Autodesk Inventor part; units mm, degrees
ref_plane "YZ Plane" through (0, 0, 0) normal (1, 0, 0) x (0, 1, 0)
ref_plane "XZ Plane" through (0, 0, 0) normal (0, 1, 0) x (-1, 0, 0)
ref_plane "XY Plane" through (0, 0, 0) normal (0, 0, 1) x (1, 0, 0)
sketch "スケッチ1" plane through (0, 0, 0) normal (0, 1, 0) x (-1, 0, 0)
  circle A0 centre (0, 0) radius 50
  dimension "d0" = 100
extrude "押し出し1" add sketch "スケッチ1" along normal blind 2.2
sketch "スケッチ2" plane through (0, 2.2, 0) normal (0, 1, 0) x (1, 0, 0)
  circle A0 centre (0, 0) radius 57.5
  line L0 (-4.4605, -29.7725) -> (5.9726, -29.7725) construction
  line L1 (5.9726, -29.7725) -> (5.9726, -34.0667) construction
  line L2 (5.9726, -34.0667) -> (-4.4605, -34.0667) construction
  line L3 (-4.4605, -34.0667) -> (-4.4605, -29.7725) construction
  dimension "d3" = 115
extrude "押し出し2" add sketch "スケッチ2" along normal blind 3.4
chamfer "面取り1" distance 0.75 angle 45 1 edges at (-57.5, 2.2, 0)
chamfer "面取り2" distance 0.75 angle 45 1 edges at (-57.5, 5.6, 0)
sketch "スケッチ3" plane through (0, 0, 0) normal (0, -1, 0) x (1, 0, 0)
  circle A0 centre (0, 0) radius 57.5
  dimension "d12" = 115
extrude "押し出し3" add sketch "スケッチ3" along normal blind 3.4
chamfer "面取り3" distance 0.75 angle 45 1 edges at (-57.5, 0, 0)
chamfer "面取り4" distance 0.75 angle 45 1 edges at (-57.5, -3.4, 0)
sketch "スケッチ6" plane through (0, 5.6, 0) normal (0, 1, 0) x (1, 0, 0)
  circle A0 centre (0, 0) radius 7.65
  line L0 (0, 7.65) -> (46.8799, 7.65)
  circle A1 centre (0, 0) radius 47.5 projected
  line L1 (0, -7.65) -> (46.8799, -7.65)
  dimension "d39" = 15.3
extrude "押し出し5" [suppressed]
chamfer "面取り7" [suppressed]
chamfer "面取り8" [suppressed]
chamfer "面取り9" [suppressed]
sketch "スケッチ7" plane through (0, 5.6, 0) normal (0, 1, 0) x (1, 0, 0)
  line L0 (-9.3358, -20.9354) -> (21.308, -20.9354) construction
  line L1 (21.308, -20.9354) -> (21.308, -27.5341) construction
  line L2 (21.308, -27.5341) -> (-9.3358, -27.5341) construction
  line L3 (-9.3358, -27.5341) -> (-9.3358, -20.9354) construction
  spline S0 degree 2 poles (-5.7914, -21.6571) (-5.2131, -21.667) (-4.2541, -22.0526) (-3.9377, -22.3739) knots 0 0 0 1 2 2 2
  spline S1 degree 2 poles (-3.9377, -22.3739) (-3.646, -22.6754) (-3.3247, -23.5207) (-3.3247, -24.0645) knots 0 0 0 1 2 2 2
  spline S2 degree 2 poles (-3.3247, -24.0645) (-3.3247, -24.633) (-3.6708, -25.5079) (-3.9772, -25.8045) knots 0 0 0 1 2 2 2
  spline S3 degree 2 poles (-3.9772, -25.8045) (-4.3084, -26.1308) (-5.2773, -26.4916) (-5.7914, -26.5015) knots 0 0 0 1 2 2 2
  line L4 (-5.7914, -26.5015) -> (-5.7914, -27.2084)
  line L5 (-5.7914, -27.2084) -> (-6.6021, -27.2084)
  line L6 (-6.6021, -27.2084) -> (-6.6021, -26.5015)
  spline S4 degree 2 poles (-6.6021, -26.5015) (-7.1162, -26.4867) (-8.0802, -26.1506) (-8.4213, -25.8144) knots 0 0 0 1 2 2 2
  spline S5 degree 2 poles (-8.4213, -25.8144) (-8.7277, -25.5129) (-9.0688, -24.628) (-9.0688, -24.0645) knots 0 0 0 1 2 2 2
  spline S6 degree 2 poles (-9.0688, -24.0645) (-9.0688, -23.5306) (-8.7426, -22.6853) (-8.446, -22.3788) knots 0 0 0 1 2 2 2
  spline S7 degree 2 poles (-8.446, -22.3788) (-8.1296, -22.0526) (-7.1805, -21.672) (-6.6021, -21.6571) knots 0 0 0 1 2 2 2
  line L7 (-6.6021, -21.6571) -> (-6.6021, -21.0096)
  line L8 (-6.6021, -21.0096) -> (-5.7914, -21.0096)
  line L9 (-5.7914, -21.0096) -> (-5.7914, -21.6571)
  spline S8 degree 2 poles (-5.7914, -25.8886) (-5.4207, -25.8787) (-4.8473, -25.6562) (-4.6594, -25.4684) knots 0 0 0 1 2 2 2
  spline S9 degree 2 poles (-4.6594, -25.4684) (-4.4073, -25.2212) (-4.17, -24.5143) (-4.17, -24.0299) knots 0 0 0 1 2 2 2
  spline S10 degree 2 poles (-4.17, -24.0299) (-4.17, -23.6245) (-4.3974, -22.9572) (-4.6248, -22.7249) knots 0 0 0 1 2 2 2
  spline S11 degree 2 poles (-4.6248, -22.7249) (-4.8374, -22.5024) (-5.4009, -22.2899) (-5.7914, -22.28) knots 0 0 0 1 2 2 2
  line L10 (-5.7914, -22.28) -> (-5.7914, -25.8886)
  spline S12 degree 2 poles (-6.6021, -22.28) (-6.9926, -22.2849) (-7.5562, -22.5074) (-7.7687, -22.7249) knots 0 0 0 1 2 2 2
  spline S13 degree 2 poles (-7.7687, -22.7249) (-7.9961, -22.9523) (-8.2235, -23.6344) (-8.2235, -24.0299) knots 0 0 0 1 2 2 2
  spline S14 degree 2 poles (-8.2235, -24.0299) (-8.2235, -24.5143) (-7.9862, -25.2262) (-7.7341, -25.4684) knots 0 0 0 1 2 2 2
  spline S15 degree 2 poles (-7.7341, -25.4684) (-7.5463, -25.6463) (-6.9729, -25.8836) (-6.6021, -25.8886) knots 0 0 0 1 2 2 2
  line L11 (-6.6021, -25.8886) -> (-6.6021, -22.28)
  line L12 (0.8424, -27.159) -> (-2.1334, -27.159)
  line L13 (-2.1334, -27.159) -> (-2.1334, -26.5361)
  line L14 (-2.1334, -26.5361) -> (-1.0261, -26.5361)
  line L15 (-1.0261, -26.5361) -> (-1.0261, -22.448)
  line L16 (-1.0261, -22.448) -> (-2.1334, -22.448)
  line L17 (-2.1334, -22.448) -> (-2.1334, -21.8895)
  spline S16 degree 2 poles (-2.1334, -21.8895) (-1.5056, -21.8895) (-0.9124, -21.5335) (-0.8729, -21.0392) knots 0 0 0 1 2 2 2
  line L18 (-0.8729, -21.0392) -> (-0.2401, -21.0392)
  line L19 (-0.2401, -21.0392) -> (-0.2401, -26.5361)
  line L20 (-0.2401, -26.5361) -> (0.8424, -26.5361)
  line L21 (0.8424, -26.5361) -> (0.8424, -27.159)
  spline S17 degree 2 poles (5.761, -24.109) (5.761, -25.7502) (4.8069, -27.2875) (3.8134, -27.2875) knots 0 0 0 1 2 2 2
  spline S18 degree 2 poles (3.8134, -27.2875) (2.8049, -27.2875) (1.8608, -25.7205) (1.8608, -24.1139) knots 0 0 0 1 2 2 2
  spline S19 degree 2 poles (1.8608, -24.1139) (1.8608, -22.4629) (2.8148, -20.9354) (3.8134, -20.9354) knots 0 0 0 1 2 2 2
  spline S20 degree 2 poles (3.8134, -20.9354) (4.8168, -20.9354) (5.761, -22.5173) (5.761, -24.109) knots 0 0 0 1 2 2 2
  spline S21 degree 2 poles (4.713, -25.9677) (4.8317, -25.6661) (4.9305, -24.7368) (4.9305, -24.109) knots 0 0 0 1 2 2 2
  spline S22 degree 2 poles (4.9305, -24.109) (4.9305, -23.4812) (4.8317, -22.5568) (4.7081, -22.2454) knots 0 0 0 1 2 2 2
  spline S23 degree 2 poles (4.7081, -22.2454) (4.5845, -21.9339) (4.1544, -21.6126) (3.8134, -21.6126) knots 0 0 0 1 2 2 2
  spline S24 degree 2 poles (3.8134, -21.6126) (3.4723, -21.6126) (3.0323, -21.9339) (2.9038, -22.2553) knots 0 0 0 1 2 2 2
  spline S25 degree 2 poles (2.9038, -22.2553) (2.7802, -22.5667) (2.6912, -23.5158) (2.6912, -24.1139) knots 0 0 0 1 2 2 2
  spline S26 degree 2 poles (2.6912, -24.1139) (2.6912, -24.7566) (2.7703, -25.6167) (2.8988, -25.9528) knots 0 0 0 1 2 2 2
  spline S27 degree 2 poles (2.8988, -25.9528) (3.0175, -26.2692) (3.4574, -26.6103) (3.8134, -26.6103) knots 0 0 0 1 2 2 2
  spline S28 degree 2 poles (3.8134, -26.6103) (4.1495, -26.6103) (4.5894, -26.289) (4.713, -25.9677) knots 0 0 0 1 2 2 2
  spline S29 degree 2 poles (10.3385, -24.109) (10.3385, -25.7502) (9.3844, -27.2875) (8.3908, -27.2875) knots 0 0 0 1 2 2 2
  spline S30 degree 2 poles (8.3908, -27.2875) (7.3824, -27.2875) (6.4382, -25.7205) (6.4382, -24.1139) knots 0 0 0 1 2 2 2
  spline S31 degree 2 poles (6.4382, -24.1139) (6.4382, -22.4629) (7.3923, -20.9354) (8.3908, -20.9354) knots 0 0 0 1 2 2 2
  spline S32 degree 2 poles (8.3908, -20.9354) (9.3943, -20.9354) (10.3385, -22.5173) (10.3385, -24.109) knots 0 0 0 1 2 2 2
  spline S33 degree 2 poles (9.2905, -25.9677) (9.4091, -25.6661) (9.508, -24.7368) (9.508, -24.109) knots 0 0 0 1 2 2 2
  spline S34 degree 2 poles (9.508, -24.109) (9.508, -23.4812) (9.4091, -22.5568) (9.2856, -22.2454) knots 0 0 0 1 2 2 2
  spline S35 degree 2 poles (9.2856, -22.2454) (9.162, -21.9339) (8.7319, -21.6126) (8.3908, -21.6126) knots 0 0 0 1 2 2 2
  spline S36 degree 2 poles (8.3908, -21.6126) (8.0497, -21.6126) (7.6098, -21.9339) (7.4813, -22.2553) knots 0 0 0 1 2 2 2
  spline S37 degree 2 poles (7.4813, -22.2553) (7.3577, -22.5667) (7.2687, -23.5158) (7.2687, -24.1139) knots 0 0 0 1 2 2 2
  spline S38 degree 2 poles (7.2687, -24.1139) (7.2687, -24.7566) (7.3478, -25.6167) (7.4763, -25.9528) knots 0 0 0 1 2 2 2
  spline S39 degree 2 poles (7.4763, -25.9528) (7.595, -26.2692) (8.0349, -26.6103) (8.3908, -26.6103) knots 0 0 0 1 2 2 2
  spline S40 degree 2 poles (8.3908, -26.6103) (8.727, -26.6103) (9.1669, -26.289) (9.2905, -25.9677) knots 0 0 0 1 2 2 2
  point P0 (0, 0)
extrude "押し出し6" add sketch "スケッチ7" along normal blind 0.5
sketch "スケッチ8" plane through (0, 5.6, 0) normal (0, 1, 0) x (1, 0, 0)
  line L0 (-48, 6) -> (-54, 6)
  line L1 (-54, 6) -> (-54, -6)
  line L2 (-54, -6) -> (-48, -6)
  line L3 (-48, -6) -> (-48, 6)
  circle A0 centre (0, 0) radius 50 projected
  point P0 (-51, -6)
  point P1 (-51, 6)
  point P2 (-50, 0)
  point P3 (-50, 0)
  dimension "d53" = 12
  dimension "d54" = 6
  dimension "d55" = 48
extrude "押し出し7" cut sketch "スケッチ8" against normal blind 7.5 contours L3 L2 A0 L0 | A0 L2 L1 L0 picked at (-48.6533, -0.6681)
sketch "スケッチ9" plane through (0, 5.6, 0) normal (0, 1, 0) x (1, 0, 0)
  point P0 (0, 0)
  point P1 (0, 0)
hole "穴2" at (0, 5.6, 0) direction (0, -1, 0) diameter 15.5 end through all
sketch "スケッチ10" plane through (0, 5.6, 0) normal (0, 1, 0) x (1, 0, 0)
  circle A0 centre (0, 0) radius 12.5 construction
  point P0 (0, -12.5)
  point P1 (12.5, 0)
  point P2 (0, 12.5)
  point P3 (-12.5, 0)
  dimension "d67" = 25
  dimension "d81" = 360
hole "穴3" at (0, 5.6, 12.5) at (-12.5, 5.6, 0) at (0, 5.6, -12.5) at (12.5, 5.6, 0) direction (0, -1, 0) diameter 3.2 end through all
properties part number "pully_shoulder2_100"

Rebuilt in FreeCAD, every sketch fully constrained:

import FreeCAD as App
import Part
import Sketcher
Q = App.Units.Quantity


def edges_at(feature, points):
    """Names of the edges that pass closest to the given points."""
    edges = feature.Shape.Edges
    near = lambda p: min(range(len(edges)), key=lambda i: edges[i].distToShape(Part.Vertex(*p))[0])
    return sorted({f"Edge{near(p) + 1}" for p in points})


def add_polygon(sketch, points):
    """Adds a closed chain of lines whose ends are joined by coincident constraints."""
    first, n = sketch.GeometryCount, len(points)
    for a, b in zip(points, points[1:] + points[:1]):
        sketch.addGeometry(Part.LineSegment(App.Vector(*a, 0), App.Vector(*b, 0)), False)
    for i in range(n):
        sketch.addConstraint(Sketcher.Constraint("Coincident", first + i, 2, first + (i + 1) % n, 1))

doc = App.newDocument("Part")
body = doc.addObject("PartDesign::Body", "Body")

# Sketch on XZ plane
sketch1 = body.newObject("Sketcher::SketchObject", "Sketch")
sketch1.AttachmentSupport = (doc.getObject("XZ_Plane"), [""])
sketch1.MapMode = "FlatFace"
sketch1.addGeometry(Part.Circle(App.Vector(0, 0, 0), App.Vector(0, 0, 1), 50), False)
sketch1.addConstraint(Sketcher.Constraint("Coincident", 0, 3, -1, 1))
sketch1.addConstraint(Sketcher.Constraint("Diameter", 0, Q("100 mm")))
pad1 = body.newObject("PartDesign::Pad", "Pad")
pad1.Profile = sketch1
pad1.Length = 2.2
pad1.Reversed = True

# Sketch on XZ plane
sketch2 = body.newObject("Sketcher::SketchObject", "Sketch001")
sketch2.AttachmentSupport = (doc.getObject("XZ_Plane"), [""])
sketch2.MapMode = "FlatFace"
sketch2.AttachmentOffset = App.Placement(App.Vector(0, 0, -2.2), App.Rotation())
sketch2.addGeometry(Part.Circle(App.Vector(0, 0, 0), App.Vector(0, 0, 1), 58), False)
sketch2.addConstraint(Sketcher.Constraint("Coincident", 0, 3, -1, 1))
sketch2.addConstraint(Sketcher.Constraint("Diameter", 0, Q("115 mm")))
pad2 = body.newObject("PartDesign::Pad", "Pad001")
pad2.Profile = sketch2
pad2.Length = 3.4
pad2.Reversed = True
doc.recompute()

chamfer = body.newObject("PartDesign::Chamfer", "Chamfer")
chamfer.Base = (pad2, edges_at(pad2, [(-57.5, 2.2, 0)]))
chamfer.Size = 0.75
doc.recompute()

chamfer2 = body.newObject("PartDesign::Chamfer", "Chamfer001")
chamfer2.Base = (chamfer, edges_at(chamfer, [(-57.5, 5.6, 0)]))
chamfer2.Size = 0.75

# Sketch on XZ plane
sketch3 = body.newObject("Sketcher::SketchObject", "Sketch002")
sketch3.AttachmentSupport = (doc.getObject("XZ_Plane"), [""])
sketch3.MapMode = "FlatFace"
sketch3.addGeometry(Part.Circle(App.Vector(0, 0, 0), App.Vector(0, 0, 1), 58), False)
sketch3.addConstraint(Sketcher.Constraint("Coincident", 0, 3, -1, 1))
sketch3.addConstraint(Sketcher.Constraint("Diameter", 0, Q("115 mm")))
pad3 = body.newObject("PartDesign::Pad", "Pad002")
pad3.Profile = sketch3
pad3.Length = 3.4
doc.recompute()

chamfer3 = body.newObject("PartDesign::Chamfer", "Chamfer002")
chamfer3.Base = (pad3, edges_at(pad3, [(-57.5, 0, 0)]))
chamfer3.Size = 0.75
doc.recompute()

chamfer4 = body.newObject("PartDesign::Chamfer", "Chamfer003")
chamfer4.Base = (chamfer3, edges_at(chamfer3, [(-57.5, -3.4, 0)]))
chamfer4.Size = 0.75

# Sketch on XZ plane
sketch4 = body.newObject("Sketcher::SketchObject", "Sketch003")
sketch4.AttachmentSupport = (doc.getObject("XZ_Plane"), [""])
sketch4.MapMode = "FlatFace"
sketch4.AttachmentOffset = App.Placement(App.Vector(0, 0, -5.6), App.Rotation())
sketch4.addGeometry(Part.BSplineCurve([App.Vector(-5.7914, 21.6571, 0), App.Vector(-5.2131, 21.667, 0), App.Vector(-4.2541, 22.0526, 0), App.Vector(-3.9377, 22.3739, 0)], [3, 1, 3], [0, 1, 2], False, 2, [1, 1, 1, 1], False), False)
sketch4.addGeometry(Part.LineSegment(App.Vector(-5.7914, 21.6571, 0), App.Vector(-5.7914, 21.0096, 0)), False)
sketch4.addGeometry(Part.LineSegment(App.Vector(-5.7914, 21.0096, 0), App.Vector(-6.6021, 21.0096, 0)), False)
sketch4.addGeometry(Part.LineSegment(App.Vector(-6.6021, 21.0096, 0), App.Vector(-6.6021, 21.6571, 0)), False)
sketch4.addGeometry(Part.BSplineCurve([App.Vector(-8.446, 22.3788, 0), App.Vector(-8.1296, 22.0526, 0), App.Vector(-7.1805, 21.672, 0), App.Vector(-6.6021, 21.6571, 0)], [3, 1, 3], [0, 1, 2], False, 2, [1, 1, 1, 1], False), False)
sketch4.addGeometry(Part.BSplineCurve([App.Vector(-9.0688, 24.0645, 0), App.Vector(-9.0688, 23.5306, 0), App.Vector(-8.7426, 22.6853, 0), App.Vector(-8.446, 22.3788, 0)], [3, 1, 3], [0, 1, 2], False, 2, [1, 1, 1, 1], False), False)
sketch4.addGeometry(Part.BSplineCurve([App.Vector(-8.4213, 25.8144, 0), App.Vector(-8.7277, 25.5129, 0), App.Vector(-9.0688, 24.628, 0), App.Vector(-9.0688, 24.0645, 0)], [3, 1, 3], [0, 1, 2], False, 2, [1, 1, 1, 1], False), False)
sketch4.addGeometry(Part.BSplineCurve([App.Vector(-6.6021, 26.5015, 0), App.Vector(-7.1162, 26.4867, 0), App.Vector(-8.0802, 26.1506, 0), App.Vector(-8.4213, 25.8144, 0)], [3, 1, 3], [0, 1, 2], False, 2, [1, 1, 1, 1], False), False)
sketch4.addGeometry(Part.LineSegment(App.Vector(-6.6021, 26.5015, 0), App.Vector(-6.6021, 27.2084, 0)), False)
sketch4.addGeometry(Part.LineSegment(App.Vector(-6.6021, 27.2084, 0), App.Vector(-5.7914, 27.2084, 0)), False)
sketch4.addGeometry(Part.LineSegment(App.Vector(-5.7914, 27.2084, 0), App.Vector(-5.7914, 26.5015, 0)), False)
sketch4.addGeometry(Part.BSplineCurve([App.Vector(-3.9772, 25.8045, 0), App.Vector(-4.3084, 26.1308, 0), App.Vector(-5.2773, 26.4916, 0), App.Vector(-5.7914, 26.5015, 0)], [3, 1, 3], [0, 1, 2], False, 2, [1, 1, 1, 1], False), False)
sketch4.addGeometry(Part.BSplineCurve([App.Vector(-3.3247, 24.0645, 0), App.Vector(-3.3247, 24.633, 0), App.Vector(-3.6708, 25.5079, 0), App.Vector(-3.9772, 25.8045, 0)], [3, 1, 3], [0, 1, 2], False, 2, [1, 1, 1, 1], False), False)
sketch4.addGeometry(Part.BSplineCurve([App.Vector(-3.9377, 22.3739, 0), App.Vector(-3.646, 22.6754, 0), App.Vector(-3.3247, 23.5207, 0), App.Vector(-3.3247, 24.0645, 0)], [3, 1, 3], [0, 1, 2], False, 2, [1, 1, 1, 1], False), False)
sketch4.addGeometry(Part.BSplineCurve([App.Vector(-6.6021, 22.28, 0), App.Vector(-6.9926, 22.2849, 0), App.Vector(-7.5562, 22.5074, 0), App.Vector(-7.7687, 22.7249, 0)], [3, 1, 3], [0, 1, 2], False, 2, [1, 1, 1, 1], False), False)
sketch4.addGeometry(Part.LineSegment(App.Vector(-6.6021, 22.28, 0), App.Vector(-6.6021, 25.8886, 0)), False)
sketch4.addGeometry(Part.BSplineCurve([App.Vector(-7.7341, 25.4684, 0), App.Vector(-7.5463, 25.6463, 0), App.Vector(-6.9729, 25.8836, 0), App.Vector(-6.6021, 25.8886, 0)], [3, 1, 3], [0, 1, 2], False, 2, [1, 1, 1, 1], False), False)
sketch4.addGeometry(Part.BSplineCurve([App.Vector(-8.2235, 24.0299, 0), App.Vector(-8.2235, 24.5143, 0), App.Vector(-7.9862, 25.2262, 0), App.Vector(-7.7341, 25.4684, 0)], [3, 1, 3], [0, 1, 2], False, 2, [1, 1, 1, 1], False), False)
sketch4.addGeometry(Part.BSplineCurve([App.Vector(-7.7687, 22.7249, 0), App.Vector(-7.9961, 22.9523, 0), App.Vector(-8.2235, 23.6344, 0), App.Vector(-8.2235, 24.0299, 0)], [3, 1, 3], [0, 1, 2], False, 2, [1, 1, 1, 1], False), False)
sketch4.addGeometry(Part.BSplineCurve([App.Vector(-5.7914, 25.8886, 0), App.Vector(-5.4207, 25.8787, 0), App.Vector(-4.8473, 25.6562, 0), App.Vector(-4.6594, 25.4684, 0)], [3, 1, 3], [0, 1, 2], False, 2, [1, 1, 1, 1], False), False)
sketch4.addGeometry(Part.LineSegment(App.Vector(-5.7914, 25.8886, 0), App.Vector(-5.7914, 22.28, 0)), False)
sketch4.addGeometry(Part.BSplineCurve([App.Vector(-4.6248, 22.7249, 0), App.Vector(-4.8374, 22.5024, 0), App.Vector(-5.4009, 22.2899, 0), App.Vector(-5.7914, 22.28, 0)], [3, 1, 3], [0, 1, 2], False, 2, [1, 1, 1, 1], False), False)
sketch4.addGeometry(Part.BSplineCurve([App.Vector(-4.17, 24.0299, 0), App.Vector(-4.17, 23.6245, 0), App.Vector(-4.3974, 22.9572, 0), App.Vector(-4.6248, 22.7249, 0)], [3, 1, 3], [0, 1, 2], False, 2, [1, 1, 1, 1], False), False)
sketch4.addGeometry(Part.BSplineCurve([App.Vector(-4.6594, 25.4684, 0), App.Vector(-4.4073, 25.2212, 0), App.Vector(-4.17, 24.5143, 0), App.Vector(-4.17, 24.0299, 0)], [3, 1, 3], [0, 1, 2], False, 2, [1, 1, 1, 1], False), False)
sketch4.addGeometry(Part.LineSegment(App.Vector(-2.1334, 27.159, 0), App.Vector(0.8424, 27.159, 0)), False)
sketch4.addGeometry(Part.LineSegment(App.Vector(0.8424, 27.159, 0), App.Vector(0.8424, 26.5361, 0)), False)
sketch4.addGeometry(Part.LineSegment(App.Vector(0.8424, 26.5361, 0), App.Vector(-0.2401, 26.5361, 0)), False)
sketch4.addGeometry(Part.LineSegment(App.Vector(-0.2401, 26.5361, 0), App.Vector(-0.2401, 21.0392, 0)), False)
sketch4.addGeometry(Part.LineSegment(App.Vector(-0.2401, 21.0392, 0), App.Vector(-0.8729, 21.0392, 0)), False)
sketch4.addGeometry(Part.BSplineCurve([App.Vector(-2.1334, 21.8895, 0), App.Vector(-1.5056, 21.8895, 0), App.Vector(-0.9124, 21.5335, 0), App.Vector(-0.8729, 21.0392, 0)], [3, 1, 3], [0, 1, 2], False, 2, [1, 1, 1, 1], False), False)
sketch4.addGeometry(Part.LineSegment(App.Vector(-2.1334, 21.8895, 0), App.Vector(-2.1334, 22.448, 0)), False)
sketch4.addGeometry(Part.LineSegment(App.Vector(-2.1334, 22.448, 0), App.Vector(-1.0261, 22.448, 0)), False)
sketch4.addGeometry(Part.LineSegment(App.Vector(-1.0261, 22.448, 0), App.Vector(-1.0261, 26.5361, 0)), False)
sketch4.addGeometry(Part.LineSegment(App.Vector(-1.0261, 26.5361, 0), App.Vector(-2.1334, 26.5361, 0)), False)
sketch4.addGeometry(Part.LineSegment(App.Vector(-2.1334, 26.5361, 0), App.Vector(-2.1334, 27.159, 0)), False)
sketch4.addGeometry(Part.BSplineCurve([App.Vector(5.761, 24.109, 0), App.Vector(5.761, 25.7502, 0), App.Vector(4.8069, 27.2875, 0), App.Vector(3.8134, 27.2875, 0)], [3, 1, 3], [0, 1, 2], False, 2, [1, 1, 1, 1], False), False)
sketch4.addGeometry(Part.BSplineCurve([App.Vector(3.8134, 20.9354, 0), App.Vector(4.8168, 20.9354, 0), App.Vector(5.761, 22.5173, 0), App.Vector(5.761, 24.109, 0)], [3, 1, 3], [0, 1, 2], False, 2, [1, 1, 1, 1], False), False)
sketch4.addGeometry(Part.BSplineCurve([App.Vector(1.8608, 24.1139, 0), App.Vector(1.8608, 22.4629, 0), App.Vector(2.8148, 20.9354, 0), App.Vector(3.8134, 20.9354, 0)], [3, 1, 3], [0, 1, 2], False, 2, [1, 1, 1, 1], False), False)
sketch4.addGeometry(Part.BSplineCurve([App.Vector(3.8134, 27.2875, 0), App.Vector(2.8049, 27.2875, 0), App.Vector(1.8608, 25.7205, 0), App.Vector(1.8608, 24.1139, 0)], [3, 1, 3], [0, 1, 2], False, 2, [1, 1, 1, 1], False), False)
sketch4.addGeometry(Part.BSplineCurve([App.Vector(4.713, 25.9677, 0), App.Vector(4.8317, 25.6661, 0), App.Vector(4.9305, 24.7368, 0), App.Vector(4.9305, 24.109, 0)], [3, 1, 3], [0, 1, 2], False, 2, [1, 1, 1, 1], False), False)
sketch4.addGeometry(Part.BSplineCurve([App.Vector(3.8134, 26.6103, 0), App.Vector(4.1495, 26.6103, 0), App.Vector(4.5894, 26.289, 0), App.Vector(4.713, 25.9677, 0)], [3, 1, 3], [0, 1, 2], False, 2, [1, 1, 1, 1], False), False)
sketch4.addGeometry(Part.BSplineCurve([App.Vector(2.8988, 25.9528, 0), App.Vector(3.0175, 26.2692, 0), App.Vector(3.4574, 26.6103, 0), App.Vector(3.8134, 26.6103, 0)], [3, 1, 3], [0, 1, 2], False, 2, [1, 1, 1, 1], False), False)
sketch4.addGeometry(Part.BSplineCurve([App.Vector(2.6912, 24.1139, 0), App.Vector(2.6912, 24.7566, 0), App.Vector(2.7703, 25.6167, 0), App.Vector(2.8988, 25.9528, 0)], [3, 1, 3], [0, 1, 2], False, 2, [1, 1, 1, 1], False), False)
sketch4.addGeometry(Part.BSplineCurve([App.Vector(2.9038, 22.2553, 0), App.Vector(2.7802, 22.5667, 0), App.Vector(2.6912, 23.5158, 0), App.Vector(2.6912, 24.1139, 0)], [3, 1, 3], [0, 1, 2], False, 2, [1, 1, 1, 1], False), False)
sketch4.addGeometry(Part.BSplineCurve([App.Vector(3.8134, 21.6126, 0), App.Vector(3.4723, 21.6126, 0), App.Vector(3.0323, 21.9339, 0), App.Vector(2.9038, 22.2553, 0)], [3, 1, 3], [0, 1, 2], False, 2, [1, 1, 1, 1], False), False)
sketch4.addGeometry(Part.BSplineCurve([App.Vector(4.7081, 22.2454, 0), App.Vector(4.5845, 21.9339, 0), App.Vector(4.1544, 21.6126, 0), App.Vector(3.8134, 21.6126, 0)], [3, 1, 3], [0, 1, 2], False, 2, [1, 1, 1, 1], False), False)
sketch4.addGeometry(Part.BSplineCurve([App.Vector(4.9305, 24.109, 0), App.Vector(4.9305, 23.4812, 0), App.Vector(4.8317, 22.5568, 0), App.Vector(4.7081, 22.2454, 0)], [3, 1, 3], [0, 1, 2], False, 2, [1, 1, 1, 1], False), False)
sketch4.addGeometry(Part.BSplineCurve([App.Vector(10.3385, 24.109, 0), App.Vector(10.3385, 25.7502, 0), App.Vector(9.3844, 27.2875, 0), App.Vector(8.3908, 27.2875, 0)], [3, 1, 3], [0, 1, 2], False, 2, [1, 1, 1, 1], False), False)
sketch4.addGeometry(Part.BSplineCurve([App.Vector(8.3908, 20.9354, 0), App.Vector(9.3943, 20.9354, 0), App.Vector(10.3385, 22.5173, 0), App.Vector(10.3385, 24.109, 0)], [3, 1, 3], [0, 1, 2], False, 2, [1, 1, 1, 1], False), False)
sketch4.addGeometry(Part.BSplineCurve([App.Vector(6.4382, 24.1139, 0), App.Vector(6.4382, 22.4629, 0), App.Vector(7.3923, 20.9354, 0), App.Vector(8.3908, 20.9354, 0)], [3, 1, 3], [0, 1, 2], False, 2, [1, 1, 1, 1], False), False)
sketch4.addGeometry(Part.BSplineCurve([App.Vector(8.3908, 27.2875, 0), App.Vector(7.3824, 27.2875, 0), App.Vector(6.4382, 25.7205, 0), App.Vector(6.4382, 24.1139, 0)], [3, 1, 3], [0, 1, 2], False, 2, [1, 1, 1, 1], False), False)
sketch4.addGeometry(Part.BSplineCurve([App.Vector(9.2905, 25.9677, 0), App.Vector(9.4091, 25.6661, 0), App.Vector(9.508, 24.7368, 0), App.Vector(9.508, 24.109, 0)], [3, 1, 3], [0, 1, 2], False, 2, [1, 1, 1, 1], False), False)
sketch4.addGeometry(Part.BSplineCurve([App.Vector(8.3908, 26.6103, 0), App.Vector(8.727, 26.6103, 0), App.Vector(9.1669, 26.289, 0), App.Vector(9.2905, 25.9677, 0)], [3, 1, 3], [0, 1, 2], False, 2, [1, 1, 1, 1], False), False)
sketch4.addGeometry(Part.BSplineCurve([App.Vector(7.4763, 25.9528, 0), App.Vector(7.595, 26.2692, 0), App.Vector(8.0349, 26.6103, 0), App.Vector(8.3908, 26.6103, 0)], [3, 1, 3], [0, 1, 2], False, 2, [1, 1, 1, 1], False), False)
sketch4.addGeometry(Part.BSplineCurve([App.Vector(7.2687, 24.1139, 0), App.Vector(7.2687, 24.7566, 0), App.Vector(7.3478, 25.6167, 0), App.Vector(7.4763, 25.9528, 0)], [3, 1, 3], [0, 1, 2], False, 2, [1, 1, 1, 1], False), False)
sketch4.addGeometry(Part.BSplineCurve([App.Vector(7.4813, 22.2553, 0), App.Vector(7.3577, 22.5667, 0), App.Vector(7.2687, 23.5158, 0), App.Vector(7.2687, 24.1139, 0)], [3, 1, 3], [0, 1, 2], False, 2, [1, 1, 1, 1], False), False)
sketch4.addGeometry(Part.BSplineCurve([App.Vector(8.3908, 21.6126, 0), App.Vector(8.0497, 21.6126, 0), App.Vector(7.6098, 21.9339, 0), App.Vector(7.4813, 22.2553, 0)], [3, 1, 3], [0, 1, 2], False, 2, [1, 1, 1, 1], False), False)
sketch4.addGeometry(Part.BSplineCurve([App.Vector(9.2856, 22.2454, 0), App.Vector(9.162, 21.9339, 0), App.Vector(8.7319, 21.6126, 0), App.Vector(8.3908, 21.6126, 0)], [3, 1, 3], [0, 1, 2], False, 2, [1, 1, 1, 1], False), False)
sketch4.addGeometry(Part.BSplineCurve([App.Vector(9.508, 24.109, 0), App.Vector(9.508, 23.4812, 0), App.Vector(9.4091, 22.5568, 0), App.Vector(9.2856, 22.2454, 0)], [3, 1, 3], [0, 1, 2], False, 2, [1, 1, 1, 1], False), False)
sketch4.addConstraint(Sketcher.Constraint("Block", 0))
sketch4.addConstraint(Sketcher.Constraint("Block", 4))
sketch4.addConstraint(Sketcher.Constraint("Block", 5))
sketch4.addConstraint(Sketcher.Constraint("Block", 6))
sketch4.addConstraint(Sketcher.Constraint("Block", 7))
sketch4.addConstraint(Sketcher.Constraint("Block", 11))
sketch4.addConstraint(Sketcher.Constraint("Block", 12))
sketch4.addConstraint(Sketcher.Constraint("Block", 13))
sketch4.addConstraint(Sketcher.Constraint("Block", 14))
sketch4.addConstraint(Sketcher.Constraint("Block", 16))
sketch4.addConstraint(Sketcher.Constraint("Block", 17))
sketch4.addConstraint(Sketcher.Constraint("Block", 18))
sketch4.addConstraint(Sketcher.Constraint("Block", 19))
sketch4.addConstraint(Sketcher.Constraint("Block", 21))
sketch4.addConstraint(Sketcher.Constraint("Block", 22))
sketch4.addConstraint(Sketcher.Constraint("Block", 23))
sketch4.addConstraint(Sketcher.Constraint("Block", 29))
sketch4.addConstraint(Sketcher.Constraint("Block", 35))
sketch4.addConstraint(Sketcher.Constraint("Block", 36))
sketch4.addConstraint(Sketcher.Constraint("Block", 37))
sketch4.addConstraint(Sketcher.Constraint("Block", 38))
sketch4.addConstraint(Sketcher.Constraint("Block", 39))
sketch4.addConstraint(Sketcher.Constraint("Block", 40))
sketch4.addConstraint(Sketcher.Constraint("Block", 41))
sketch4.addConstraint(Sketcher.Constraint("Block", 42))
sketch4.addConstraint(Sketcher.Constraint("Block", 43))
sketch4.addConstraint(Sketcher.Constraint("Block", 44))
sketch4.addConstraint(Sketcher.Constraint("Block", 45))
sketch4.addConstraint(Sketcher.Constraint("Block", 46))
sketch4.addConstraint(Sketcher.Constraint("Block", 47))
sketch4.addConstraint(Sketcher.Constraint("Block", 48))
sketch4.addConstraint(Sketcher.Constraint("Block", 49))
sketch4.addConstraint(Sketcher.Constraint("Block", 50))
sketch4.addConstraint(Sketcher.Constraint("Block", 51))
sketch4.addConstraint(Sketcher.Constraint("Block", 52))
sketch4.addConstraint(Sketcher.Constraint("Block", 53))
sketch4.addConstraint(Sketcher.Constraint("Block", 54))
sketch4.addConstraint(Sketcher.Constraint("Block", 55))
sketch4.addConstraint(Sketcher.Constraint("Block", 56))
sketch4.addConstraint(Sketcher.Constraint("Block", 57))
sketch4.addConstraint(Sketcher.Constraint("Block", 58))
sketch4.addConstraint(Sketcher.Constraint("Coincident", 0, 1, 1, 1))
sketch4.addConstraint(Sketcher.Constraint("Coincident", 1, 2, 2, 1))
sketch4.addConstraint(Sketcher.Constraint("Coincident", 2, 2, 3, 1))
sketch4.addConstraint(Sketcher.Constraint("Coincident", 3, 2, 4, 2))
sketch4.addConstraint(Sketcher.Constraint("Coincident", 7, 1, 8, 1))
sketch4.addConstraint(Sketcher.Constraint("Coincident", 8, 2, 9, 1))
sketch4.addConstraint(Sketcher.Constraint("Coincident", 9, 2, 10, 1))
sketch4.addConstraint(Sketcher.Constraint("Coincident", 10, 2, 11, 2))
sketch4.addConstraint(Sketcher.Constraint("Coincident", 14, 1, 15, 1))
sketch4.addConstraint(Sketcher.Constraint("Coincident", 15, 2, 16, 2))
sketch4.addConstraint(Sketcher.Constraint("Coincident", 19, 1, 20, 1))
sketch4.addConstraint(Sketcher.Constraint("Coincident", 20, 2, 21, 2))
sketch4.addConstraint(Sketcher.Constraint("Coincident", 24, 2, 25, 1))
sketch4.addConstraint(Sketcher.Constraint("Coincident", 25, 2, 26, 1))
sketch4.addConstraint(Sketcher.Constraint("Coincident", 26, 2, 27, 1))
sketch4.addConstraint(Sketcher.Constraint("Coincident", 27, 2, 28, 1))
sketch4.addConstraint(Sketcher.Constraint("Coincident", 28, 2, 29, 2))
sketch4.addConstraint(Sketcher.Constraint("Coincident", 29, 1, 30, 1))
sketch4.addConstraint(Sketcher.Constraint("Coincident", 30, 2, 31, 1))
sketch4.addConstraint(Sketcher.Constraint("Coincident", 31, 2, 32, 1))
sketch4.addConstraint(Sketcher.Constraint("Coincident", 32, 2, 33, 1))
sketch4.addConstraint(Sketcher.Constraint("Coincident", 33, 2, 34, 1))
sketch4.addConstraint(Sketcher.Constraint("Coincident", 34, 2, 24, 1))
sketch4.addConstraint(Sketcher.Constraint("Vertical", 1))
sketch4.addConstraint(Sketcher.Constraint("Horizontal", 2))
sketch4.addConstraint(Sketcher.Constraint("Vertical", 3))
sketch4.addConstraint(Sketcher.Constraint("Vertical", 8))
sketch4.addConstraint(Sketcher.Constraint("Horizontal", 9))
sketch4.addConstraint(Sketcher.Constraint("Vertical", 10))
sketch4.addConstraint(Sketcher.Constraint("Horizontal", 24))
sketch4.addConstraint(Sketcher.Constraint("Vertical", 25))
sketch4.addConstraint(Sketcher.Constraint("Horizontal", 26))
sketch4.addConstraint(Sketcher.Constraint("Vertical", 27))
sketch4.addConstraint(Sketcher.Constraint("Horizontal", 28))
sketch4.addConstraint(Sketcher.Constraint("Vertical", 30))
sketch4.addConstraint(Sketcher.Constraint("Horizontal", 31))
sketch4.addConstraint(Sketcher.Constraint("Vertical", 32))
sketch4.addConstraint(Sketcher.Constraint("Horizontal", 33))
sketch4.addConstraint(Sketcher.Constraint("Vertical", 34))
sketch4.addConstraint(Sketcher.Constraint("Horizontal", 26, 2, 32, 2))
sketch4.addConstraint(Sketcher.Constraint("Vertical", 30, 2, 33, 2))
sketch4.addConstraint(Sketcher.Constraint("DistanceY", 8, 1, 8, 2, Q("0.707 mm")))
sketch4.addConstraint(Sketcher.Constraint("DistanceY", 25, 2, 25, 1, Q("0.623 mm")))
sketch4.addConstraint(Sketcher.Constraint("DistanceY", 27, 2, 27, 1, Q("5.497 mm")))
sketch4.addConstraint(Sketcher.Constraint("DistanceY", 32, 1, 32, 2, Q("4.088 mm")))
sketch4.addConstraint(Sketcher.Constraint("DistanceX", 26, 2, -1, 1, Q("0.24 mm")))
sketch4.addConstraint(Sketcher.Constraint("DistanceX", 24, 1, 24, 2, Q("2.9758 mm")))
sketch4.addConstraint(Sketcher.Constraint("DistanceX", 31, 1, 31, 2, Q("1.1073 mm")))
sketch4.addConstraint(Sketcher.Constraint("DistanceY", 1, 2, 1, 1, Q("0.6475 mm")))
pad4 = body.newObject("PartDesign::Pad", "Pad003")
pad4.Profile = sketch4
pad4.Length = 0.5
pad4.Reversed = True

# Sketch on XZ plane
sketch5 = body.newObject("Sketcher::SketchObject", "Sketch004")
sketch5.AttachmentSupport = (doc.getObject("XZ_Plane"), [""])
sketch5.MapMode = "FlatFace"
sketch5.AttachmentOffset = App.Placement(App.Vector(0, 0, -5.6), App.Rotation())
add_polygon(sketch5, [(-48, 6), (-48, -6), (-54, -6), (-54, 6)])  # lines 0-3
sketch5.addConstraint(Sketcher.Constraint("Vertical", 0))
sketch5.addConstraint(Sketcher.Constraint("Horizontal", 1))
sketch5.addConstraint(Sketcher.Constraint("Vertical", 2))
sketch5.addConstraint(Sketcher.Constraint("Horizontal", 3))
sketch5.addConstraint(Sketcher.Constraint("DistanceX", 1, 2, 1, 1, Q("6 mm")))
sketch5.addConstraint(Sketcher.Constraint("DistanceY", 0, 2, 0, 1, Q("12 mm")))
sketch5.addConstraint(Sketcher.Constraint("DistanceX", 0, 2, -1, 1, Q("48 mm")))
sketch5.addConstraint(Sketcher.Constraint("DistanceY", 0, 2, -1, 1, Q("6 mm")))
pocket1 = body.newObject("PartDesign::Pocket", "Pocket")
pocket1.Profile = sketch5
pocket1.Length = 7.5
pocket1.Reversed = True

# Sketch on XZ plane
sketch6 = body.newObject("Sketcher::SketchObject", "Sketch005")
sketch6.AttachmentSupport = (doc.getObject("XZ_Plane"), [""])
sketch6.MapMode = "FlatFace"
sketch6.AttachmentOffset = App.Placement(App.Vector(0, 0, -5.6), App.Rotation())
sketch6.addGeometry(Part.Circle(App.Vector(0, 0, 0), App.Vector(0, 0, 1), 8), False)
sketch6.addConstraint(Sketcher.Constraint("Coincident", 0, 3, -1, 1))
sketch6.addConstraint(Sketcher.Constraint("Diameter", 0, Q("15.5 mm")))
doc.recompute()
hole = body.newObject("PartDesign::Hole", "Hole")
hole.Profile = sketch6
hole.ThreadType = "None"
hole.Diameter = 15.5
hole.DepthType = "ThroughAll"
hole.Reversed = True

# Sketch on XZ plane
sketch7 = body.newObject("Sketcher::SketchObject", "Sketch006")
sketch7.AttachmentSupport = (doc.getObject("XZ_Plane"), [""])
sketch7.MapMode = "FlatFace"
sketch7.AttachmentOffset = App.Placement(App.Vector(0, 0, -5.6), App.Rotation())
sketch7.addGeometry(Part.Circle(App.Vector(0, 12.5, 0), App.Vector(0, 0, 1), 1.6), False)
sketch7.addGeometry(Part.Circle(App.Vector(-12.5, 0, 0), App.Vector(0, 0, 1), 1.6), False)
sketch7.addGeometry(Part.Circle(App.Vector(0, -12.5, 0), App.Vector(0, 0, 1), 1.6), False)
sketch7.addGeometry(Part.Circle(App.Vector(12.5, 0, 0), App.Vector(0, 0, 1), 1.6), False)
sketch7.addConstraint(Sketcher.Constraint("Equal", 0, 1))
sketch7.addConstraint(Sketcher.Constraint("Equal", 1, 2))
sketch7.addConstraint(Sketcher.Constraint("Equal", 2, 3))
sketch7.addConstraint(Sketcher.Constraint("Symmetric", 0, 3, 2, 3, -1, 1))
sketch7.addConstraint(Sketcher.Constraint("Symmetric", 1, 3, 3, 3, -1, 1))
sketch7.addConstraint(Sketcher.Constraint("PointOnObject", 0, 3, -2))
sketch7.addConstraint(Sketcher.Constraint("PointOnObject", 1, 3, -1))
sketch7.addConstraint(Sketcher.Constraint("Diameter", 0, Q("3.2 mm")))
sketch7.addConstraint(Sketcher.Constraint("DistanceY", 2, 3, 0, 3, Q("25 mm")))
sketch7.addConstraint(Sketcher.Constraint("DistanceX", 1, 3, 3, 3, Q("25 mm")))
doc.recompute()
hole2 = body.newObject("PartDesign::Hole", "Hole001")
hole2.Profile = sketch7
hole2.ThreadType = "None"
hole2.Diameter = 3.2
hole2.DepthType = "ThroughAll"
hole2.Reversed = True

doc.recompute()
